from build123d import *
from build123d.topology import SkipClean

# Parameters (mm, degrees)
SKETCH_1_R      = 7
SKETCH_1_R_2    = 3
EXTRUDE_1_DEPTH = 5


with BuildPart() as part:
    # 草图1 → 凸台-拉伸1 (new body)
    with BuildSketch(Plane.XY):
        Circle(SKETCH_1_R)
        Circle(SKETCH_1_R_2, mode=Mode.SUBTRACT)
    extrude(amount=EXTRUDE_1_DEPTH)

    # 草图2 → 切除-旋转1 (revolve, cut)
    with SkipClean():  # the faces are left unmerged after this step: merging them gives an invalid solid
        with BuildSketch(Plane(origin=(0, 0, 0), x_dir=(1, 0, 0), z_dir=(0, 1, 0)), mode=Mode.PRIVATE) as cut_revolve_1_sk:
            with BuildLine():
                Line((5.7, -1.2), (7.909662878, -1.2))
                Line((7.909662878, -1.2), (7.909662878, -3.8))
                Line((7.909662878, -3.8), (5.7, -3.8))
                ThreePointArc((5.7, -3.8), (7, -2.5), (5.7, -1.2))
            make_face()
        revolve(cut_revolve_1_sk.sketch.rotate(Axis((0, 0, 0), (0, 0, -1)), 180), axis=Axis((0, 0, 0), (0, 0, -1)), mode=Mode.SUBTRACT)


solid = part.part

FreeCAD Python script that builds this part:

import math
import FreeCAD as App
import Part
import Sketcher
from FreeCAD import Vector

doc = App.newDocument("Part")
body = doc.addObject("PartDesign::Body", "Body")

# Sketch on XY plane
sketch1 = body.newObject("Sketcher::SketchObject", "Sketch")
sketch1.AttachmentSupport = (doc.getObject("XY_Plane"), [""])
sketch1.MapMode = "FlatFace"
sketch1.addGeometry([
    Part.Circle(Vector(0, 0, 0), Vector(0, 0, 1), 7),
    Part.Circle(Vector(0, 0, 0), Vector(0, 0, 1), 3),
], False)
sketch1.addConstraint([
    Sketcher.Constraint("Coincident", 0, 3, -1, 1),
    Sketcher.Constraint("Coincident", 1, 3, -1, 1),
    Sketcher.Constraint("Diameter", 0, 14.0),
    Sketcher.Constraint("Diameter", 1, 6.0),
])
pad1 = body.newObject("PartDesign::Pad", "Pad")
pad1.Profile = sketch1
pad1.Length = 5

# Sketch on XZ plane
sketch2 = body.newObject("Sketcher::SketchObject", "Sketch001")
sketch2.AttachmentSupport = (doc.getObject("XZ_Plane"), [""])
sketch2.MapMode = "FlatFace"
sketch2.addGeometry([
    Part.LineSegment(Vector(7.9, 1.2, 0), Vector(5.7, 1.2, 0)),
    Part.ArcOfCircle(Part.Circle(Vector(5.7, 2.5, 0), Vector(0, 0, 1), 1.3), math.radians(-90), math.radians(90)),
    Part.LineSegment(Vector(5.7, 3.8, 0), Vector(7.9, 3.8, 0)),
    Part.LineSegment(Vector(7.9, 3.8, 0), Vector(7.9, 1.2, 0)),
], False)
sketch2.addConstraint([
    Sketcher.Constraint("Tangent", 0, 2, 1, 1),
    Sketcher.Constraint("Tangent", 1, 2, 2, 1),
    Sketcher.Constraint("Coincident", 2, 2, 3, 1),
    Sketcher.Constraint("Coincident", 3, 2, 0, 1),
    Sketcher.Constraint("Horizontal", 0),
    Sketcher.Constraint("Horizontal", 2),
    Sketcher.Constraint("Vertical", 3),
    Sketcher.Constraint("Radius", 1, 1.3),
    Sketcher.Constraint("DistanceX", -1, 1, 1, 3, 5.7),
    Sketcher.Constraint("DistanceY", -1, 1, 1, 3, 2.5),
    Sketcher.Constraint("DistanceX", 0, 2, 0, 1, 2.209663),
])
groove = body.newObject("PartDesign::Groove", "Groove")
groove.Profile = sketch2
groove.ReferenceAxis = (sketch2, ["V_Axis"])
groove.Angle = 360

doc.recompute()
